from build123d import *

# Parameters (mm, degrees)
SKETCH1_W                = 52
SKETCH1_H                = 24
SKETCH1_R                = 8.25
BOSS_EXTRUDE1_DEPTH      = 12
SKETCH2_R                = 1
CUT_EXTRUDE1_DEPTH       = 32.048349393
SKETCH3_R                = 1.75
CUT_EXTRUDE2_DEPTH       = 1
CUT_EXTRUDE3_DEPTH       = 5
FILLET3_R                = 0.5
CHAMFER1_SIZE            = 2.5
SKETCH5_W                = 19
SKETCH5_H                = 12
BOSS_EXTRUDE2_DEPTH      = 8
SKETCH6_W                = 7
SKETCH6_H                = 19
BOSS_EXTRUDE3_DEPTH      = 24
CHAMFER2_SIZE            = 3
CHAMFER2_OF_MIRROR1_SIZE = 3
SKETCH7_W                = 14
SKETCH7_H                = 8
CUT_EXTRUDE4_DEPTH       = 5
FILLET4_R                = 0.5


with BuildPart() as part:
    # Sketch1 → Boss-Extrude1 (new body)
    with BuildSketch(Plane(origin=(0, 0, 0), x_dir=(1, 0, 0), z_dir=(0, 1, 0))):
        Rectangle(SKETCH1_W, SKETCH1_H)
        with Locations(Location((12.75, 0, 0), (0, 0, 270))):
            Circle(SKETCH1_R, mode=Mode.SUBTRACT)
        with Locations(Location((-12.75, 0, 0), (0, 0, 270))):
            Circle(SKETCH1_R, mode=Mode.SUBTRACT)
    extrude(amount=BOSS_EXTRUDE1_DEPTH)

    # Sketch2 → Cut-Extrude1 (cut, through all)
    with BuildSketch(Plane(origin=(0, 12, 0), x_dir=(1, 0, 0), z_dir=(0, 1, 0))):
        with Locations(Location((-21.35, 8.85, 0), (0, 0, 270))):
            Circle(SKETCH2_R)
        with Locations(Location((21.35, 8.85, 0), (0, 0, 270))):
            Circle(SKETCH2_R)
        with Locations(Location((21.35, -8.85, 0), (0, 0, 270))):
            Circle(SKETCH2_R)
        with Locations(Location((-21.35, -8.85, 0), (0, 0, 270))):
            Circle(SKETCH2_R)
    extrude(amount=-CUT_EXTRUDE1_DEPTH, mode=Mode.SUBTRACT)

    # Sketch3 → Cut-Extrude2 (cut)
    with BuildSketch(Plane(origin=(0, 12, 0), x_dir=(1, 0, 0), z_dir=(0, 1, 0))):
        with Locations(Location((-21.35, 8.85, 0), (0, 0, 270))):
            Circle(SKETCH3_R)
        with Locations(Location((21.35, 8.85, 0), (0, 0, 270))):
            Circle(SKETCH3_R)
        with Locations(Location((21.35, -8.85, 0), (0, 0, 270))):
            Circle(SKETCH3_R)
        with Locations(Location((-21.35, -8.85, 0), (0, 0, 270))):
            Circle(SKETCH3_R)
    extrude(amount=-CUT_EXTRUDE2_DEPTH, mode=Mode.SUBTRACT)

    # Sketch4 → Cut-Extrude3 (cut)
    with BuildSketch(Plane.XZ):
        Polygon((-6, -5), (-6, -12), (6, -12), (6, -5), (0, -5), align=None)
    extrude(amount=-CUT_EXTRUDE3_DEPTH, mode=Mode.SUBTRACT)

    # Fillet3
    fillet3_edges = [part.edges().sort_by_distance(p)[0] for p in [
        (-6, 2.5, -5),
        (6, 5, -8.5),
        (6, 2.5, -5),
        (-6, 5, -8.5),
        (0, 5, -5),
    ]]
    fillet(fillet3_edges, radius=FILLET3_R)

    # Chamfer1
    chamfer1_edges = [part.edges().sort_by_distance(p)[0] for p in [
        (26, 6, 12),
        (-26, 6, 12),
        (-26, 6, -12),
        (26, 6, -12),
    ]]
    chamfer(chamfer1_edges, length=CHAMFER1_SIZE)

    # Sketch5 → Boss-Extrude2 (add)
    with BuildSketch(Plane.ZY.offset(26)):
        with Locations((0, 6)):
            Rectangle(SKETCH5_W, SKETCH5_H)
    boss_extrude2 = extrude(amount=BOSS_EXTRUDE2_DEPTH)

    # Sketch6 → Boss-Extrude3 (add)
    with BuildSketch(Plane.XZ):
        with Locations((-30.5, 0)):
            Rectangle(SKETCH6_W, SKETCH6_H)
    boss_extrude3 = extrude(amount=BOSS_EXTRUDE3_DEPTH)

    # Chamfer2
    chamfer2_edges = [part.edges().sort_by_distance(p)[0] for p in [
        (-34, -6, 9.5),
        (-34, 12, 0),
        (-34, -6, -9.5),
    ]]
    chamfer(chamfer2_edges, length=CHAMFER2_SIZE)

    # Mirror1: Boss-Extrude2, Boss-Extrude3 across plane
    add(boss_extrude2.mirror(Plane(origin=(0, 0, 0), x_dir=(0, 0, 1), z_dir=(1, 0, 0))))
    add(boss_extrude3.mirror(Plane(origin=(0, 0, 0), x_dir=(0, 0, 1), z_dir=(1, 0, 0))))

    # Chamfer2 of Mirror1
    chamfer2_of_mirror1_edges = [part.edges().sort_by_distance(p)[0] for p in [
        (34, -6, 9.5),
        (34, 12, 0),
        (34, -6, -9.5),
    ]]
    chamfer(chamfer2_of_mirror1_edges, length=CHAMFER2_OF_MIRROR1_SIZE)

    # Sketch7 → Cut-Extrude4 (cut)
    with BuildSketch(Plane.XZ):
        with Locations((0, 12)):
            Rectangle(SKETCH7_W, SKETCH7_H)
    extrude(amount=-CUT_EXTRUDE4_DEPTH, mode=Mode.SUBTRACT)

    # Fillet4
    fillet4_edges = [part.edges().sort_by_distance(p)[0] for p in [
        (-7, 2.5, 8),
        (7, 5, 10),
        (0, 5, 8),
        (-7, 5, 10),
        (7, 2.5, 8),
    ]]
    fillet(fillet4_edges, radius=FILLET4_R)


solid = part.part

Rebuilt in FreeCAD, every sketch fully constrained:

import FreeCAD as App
import Part
import Sketcher

V = App.Vector


def edges_at(feature, points):
    """Names of the edges that pass closest to the given points."""
    edges = feature.Shape.Edges
    near = lambda p: min(range(len(edges)), key=lambda i: edges[i].distToShape(Part.Vertex(*p))[0])
    return sorted({f"Edge{near(p) + 1}" for p in points})

doc = App.newDocument("Part")
body = doc.addObject("PartDesign::Body", "Body")

sketch1 = body.newObject("Sketcher::SketchObject", "Sketch")
sketch1.AttachmentSupport = (doc.getObject("XZ_Plane"), [""])
sketch1.MapMode = "FlatFace"
sketch1.addGeometry([
    Part.LineSegment(V(-26, -12, 0), V(-26, 12, 0)),
    Part.LineSegment(V(-26, 12, 0), V(26, 12, 0)),
    Part.LineSegment(V(26, 12, 0), V(26, -12, 0)),
    Part.LineSegment(V(26, -12, 0), V(-26, -12, 0)),
    Part.Circle(V(-13, 0, 0), V(0, 0, 1), 8),
    Part.Circle(V(13, 0, 0), V(0, 0, 1), 8),
], False)
sketch1.addConstraint([
    Sketcher.Constraint("Coincident", 0, 2, 1, 1),
    Sketcher.Constraint("Coincident", 1, 2, 2, 1),
    Sketcher.Constraint("Coincident", 2, 2, 3, 1),
    Sketcher.Constraint("Coincident", 3, 2, 0, 1),
    Sketcher.Constraint("Vertical", 0),
    Sketcher.Constraint("Horizontal", 1),
    Sketcher.Constraint("Vertical", 2),
    Sketcher.Constraint("Horizontal", 3),
    Sketcher.Constraint("Equal", 4, 5),
    Sketcher.Constraint("Symmetric", 4, 3, 5, 3, -1, 1),
    Sketcher.Constraint("Symmetric", 0, 2, 2, 2, -1, 1),
    Sketcher.Constraint("PointOnObject", 4, 3, -1),
    Sketcher.Constraint("Diameter", 4, 16.5),
    Sketcher.Constraint("DistanceX", 1, 1, 1, 2, 52.0),
    Sketcher.Constraint("DistanceY", 0, 1, 0, 2, 24.0),
    Sketcher.Constraint("DistanceX", 4, 3, 5, 3, 25.5),
])
pad1 = body.newObject("PartDesign::Pad", "Pad")
pad1.Profile = sketch1
pad1.Length = 12
pad1.Reversed = True

sketch2 = body.newObject("Sketcher::SketchObject", "Sketch001")
sketch2.AttachmentSupport = (doc.getObject("XZ_Plane"), [""])
sketch2.MapMode = "FlatFace"
sketch2.AttachmentOffset = App.Placement(V(0, 0, -12), App.Rotation())
sketch2.addGeometry([
    Part.Circle(V(-21.4, -8.8, 0), V(0, 0, 1), 1),
    Part.Circle(V(21.4, -8.8, 0), V(0, 0, 1), 1),
    Part.Circle(V(21.4, 8.8, 0), V(0, 0, 1), 1),
    Part.Circle(V(-21.4, 8.8, 0), V(0, 0, 1), 1),
], False)
sketch2.addConstraint([
    Sketcher.Constraint("Equal", 0, 1),
    Sketcher.Constraint("Equal", 1, 2),
    Sketcher.Constraint("Equal", 2, 3),
    Sketcher.Constraint("Symmetric", 0, 3, 2, 3, -1, 1),
    Sketcher.Constraint("Symmetric", 1, 3, 3, 3, -1, 1),
    Sketcher.Constraint("Symmetric", 0, 3, 1, 3, -2),
    Sketcher.Constraint("Diameter", 0, 2.0),
    Sketcher.Constraint("DistanceX", 0, 3, 1, 3, 42.7),
    Sketcher.Constraint("DistanceY", 1, 3, 2, 3, 17.7),
])
pocket1 = body.newObject("PartDesign::Pocket", "Pocket")
pocket1.Profile = sketch2
pocket1.Type = "ThroughAll"
pocket1.Reversed = True

sketch3 = body.newObject("Sketcher::SketchObject", "Sketch002")
sketch3.AttachmentSupport = (doc.getObject("XZ_Plane"), [""])
sketch3.MapMode = "FlatFace"
sketch3.AttachmentOffset = App.Placement(V(0, 0, -12), App.Rotation())
sketch3.addGeometry([
    Part.Circle(V(-21.4, -8.8, 0), V(0, 0, 1), 1.8),
    Part.Circle(V(21.4, -8.8, 0), V(0, 0, 1), 1.8),
    Part.Circle(V(21.4, 8.8, 0), V(0, 0, 1), 1.8),
    Part.Circle(V(-21.4, 8.8, 0), V(0, 0, 1), 1.8),
], False)
sketch3.addConstraint([
    Sketcher.Constraint("Equal", 0, 1),
    Sketcher.Constraint("Equal", 1, 2),
    Sketcher.Constraint("Equal", 2, 3),
    Sketcher.Constraint("Symmetric", 0, 3, 2, 3, -1, 1),
    Sketcher.Constraint("Symmetric", 1, 3, 3, 3, -1, 1),
    Sketcher.Constraint("Symmetric", 0, 3, 1, 3, -2),
    Sketcher.Constraint("Diameter", 0, 3.5),
    Sketcher.Constraint("DistanceX", 0, 3, 1, 3, 42.7),
    Sketcher.Constraint("DistanceY", 1, 3, 2, 3, 17.7),
])
pocket2 = body.newObject("PartDesign::Pocket", "Pocket001")
pocket2.Profile = sketch3
pocket2.Length = 1
pocket2.Reversed = True

sketch4 = body.newObject("Sketcher::SketchObject", "Sketch003")
sketch4.AttachmentSupport = (doc.getObject("XZ_Plane"), [""])
sketch4.MapMode = "FlatFace"
sketch4.addGeometry([
    Part.LineSegment(V(-6, -5, 0), V(-6, -12, 0)),
    Part.LineSegment(V(-6, -12, 0), V(6, -12, 0)),
    Part.LineSegment(V(6, -12, 0), V(6, -5, 0)),
    Part.LineSegment(V(6, -5, 0), V(-6, -5, 0)),
], False)
sketch4.addConstraint([
    Sketcher.Constraint("Coincident", 0, 2, 1, 1),
    Sketcher.Constraint("Coincident", 1, 2, 2, 1),
    Sketcher.Constraint("Coincident", 2, 2, 3, 1),
    Sketcher.Constraint("Coincident", 3, 2, 0, 1),
    Sketcher.Constraint("Vertical", 0),
    Sketcher.Constraint("Horizontal", 1),
    Sketcher.Constraint("Vertical", 2),
    Sketcher.Constraint("Horizontal", 3),
    Sketcher.Constraint("DistanceX", 1, 1, 1, 2, 12.0),
    Sketcher.Constraint("DistanceY", 0, 2, 0, 1, 7.0),
    Sketcher.Constraint("DistanceX", 0, 2, -1, 1, 6.0),
    Sketcher.Constraint("DistanceY", 0, 2, -1, 1, 12.0),
])
pocket3 = body.newObject("PartDesign::Pocket", "Pocket002")
pocket3.Profile = sketch4
pocket3.Length = 5
doc.recompute()

fillet = body.newObject("PartDesign::Fillet", "Fillet")
fillet.Base = (pocket3, edges_at(pocket3, [
    (-6, 2.5, -5),
    (6, 5, -8.5),
    (6, 2.5, -5),
    (-6, 5, -8.5),
    (0, 5, -5),
]))
fillet.Radius = 0.5
doc.recompute()

chamfer = body.newObject("PartDesign::Chamfer", "Chamfer")
chamfer.Base = (fillet, edges_at(fillet, [
    (26, 6, 12),
    (-26, 6, 12),
    (-26, 6, -12),
    (26, 6, -12),
]))
chamfer.Size = 2.5

sketch5 = body.newObject("Sketcher::SketchObject", "Sketch004")
sketch5.AttachmentSupport = (doc.getObject("YZ_Plane"), [""])
sketch5.MapMode = "FlatFace"
sketch5.AttachmentOffset = App.Placement(V(0, 0, -26), App.Rotation())
sketch5.addGeometry([
    Part.LineSegment(V(12, -10, 0), V(0, -10, 0)),
    Part.LineSegment(V(0, -10, 0), V(0, 10, 0)),
    Part.LineSegment(V(0, 10, 0), V(12, 10, 0)),
    Part.LineSegment(V(12, 10, 0), V(12, -10, 0)),
], False)
sketch5.addConstraint([
    Sketcher.Constraint("Coincident", 0, 2, 1, 1),
    Sketcher.Constraint("Coincident", 1, 2, 2, 1),
    Sketcher.Constraint("Coincident", 2, 2, 3, 1),
    Sketcher.Constraint("Coincident", 3, 2, 0, 1),
    Sketcher.Constraint("Horizontal", 0),
    Sketcher.Constraint("Vertical", 1),
    Sketcher.Constraint("Horizontal", 2),
    Sketcher.Constraint("Vertical", 3),
    Sketcher.Constraint("Symmetric", 0, 2, 1, 2, -1, 1),
    Sketcher.Constraint("DistanceX", 0, 2, 0, 1, 12.0),
    Sketcher.Constraint("DistanceY", 1, 1, 1, 2, 19.0),
])
pad2 = body.newObject("PartDesign::Pad", "Pad001")
pad2.Profile = sketch5
pad2.Length = 8
pad2.Reversed = True

sketch6 = body.newObject("Sketcher::SketchObject", "Sketch005")
sketch6.AttachmentSupport = (doc.getObject("XZ_Plane"), [""])
sketch6.MapMode = "FlatFace"
sketch6.addGeometry([
    Part.LineSegment(V(-34, 10, 0), V(-34, -10, 0)),
    Part.LineSegment(V(-34, -10, 0), V(-27, -10, 0)),
    Part.LineSegment(V(-27, -10, 0), V(-27, 10, 0)),
    Part.LineSegment(V(-27, 10, 0), V(-34, 10, 0)),
], False)
sketch6.addConstraint([
    Sketcher.Constraint("Coincident", 0, 2, 1, 1),
    Sketcher.Constraint("Coincident", 1, 2, 2, 1),
    Sketcher.Constraint("Coincident", 2, 2, 3, 1),
    Sketcher.Constraint("Coincident", 3, 2, 0, 1),
    Sketcher.Constraint("Vertical", 0),
    Sketcher.Constraint("Horizontal", 1),
    Sketcher.Constraint("Vertical", 2),
    Sketcher.Constraint("Horizontal", 3),
    Sketcher.Constraint("DistanceX", 1, 1, 1, 2, 7.0),
    Sketcher.Constraint("DistanceY", 0, 2, 0, 1, 19.0),
    Sketcher.Constraint("DistanceX", 0, 2, -1, 1, 34.0),
    Sketcher.Constraint("DistanceY", 0, 2, -1, 1, 9.5),
])
pad3 = body.newObject("PartDesign::Pad", "Pad002")
pad3.Profile = sketch6
pad3.Length = 24
doc.recompute()

chamfer2 = body.newObject("PartDesign::Chamfer", "Chamfer001")
chamfer2.Base = (pad3, edges_at(pad3, [(-34, -6, 9.5), (-34, 12, 0), (-34, -6, -9.5)]))
chamfer2.Size = 3
doc.recompute()

mirrored = body.newObject("PartDesign::Mirrored", "Mirrored")
mirrored.Originals = [pad2, pad3]
mirrored.MirrorPlane = (doc.getObject("YZ_Plane"), [""])
body.Tip = mirrored
doc.recompute()

chamfer3 = body.newObject("PartDesign::Chamfer", "Chamfer002")
chamfer3.Base = (mirrored, edges_at(mirrored, [(34, -6, 9.5), (34, 12, 0), (34, -6, -9.5)]))
chamfer3.Size = 3

sketch7 = body.newObject("Sketcher::SketchObject", "Sketch006")
sketch7.AttachmentSupport = (doc.getObject("XZ_Plane"), [""])
sketch7.MapMode = "FlatFace"
sketch7.addGeometry([
    Part.LineSegment(V(-7, 16, 0), V(-7, 8, 0)),
    Part.LineSegment(V(-7, 8, 0), V(7, 8, 0)),
    Part.LineSegment(V(7, 8, 0), V(7, 16, 0)),
    Part.LineSegment(V(7, 16, 0), V(-7, 16, 0)),
], False)
sketch7.addConstraint([
    Sketcher.Constraint("Coincident", 0, 2, 1, 1),
    Sketcher.Constraint("Coincident", 1, 2, 2, 1),
    Sketcher.Constraint("Coincident", 2, 2, 3, 1),
    Sketcher.Constraint("Coincident", 3, 2, 0, 1),
    Sketcher.Constraint("Vertical", 0),
    Sketcher.Constraint("Horizontal", 1),
    Sketcher.Constraint("Vertical", 2),
    Sketcher.Constraint("Horizontal", 3),
    Sketcher.Constraint("DistanceX", 1, 1, 1, 2, 14.0),
    Sketcher.Constraint("DistanceY", 0, 2, 0, 1, 8.0),
    Sketcher.Constraint("DistanceX", 0, 2, -1, 1, 7.0),
    Sketcher.Constraint("DistanceY", -1, 1, 0, 2, 8.0),
])
pocket4 = body.newObject("PartDesign::Pocket", "Pocket003")
pocket4.Profile = sketch7
pocket4.Length = 5
doc.recompute()

fillet2 = body.newObject("PartDesign::Fillet", "Fillet001")
fillet2.Base = (pocket4, edges_at(pocket4, [
    (-7, 2.5, 8),
    (7, 5, 10),
    (0, 5, 8),
    (-7, 5, 10),
    (7, 2.5, 8),
]))
fillet2.Radius = 0.5

doc.recompute()
